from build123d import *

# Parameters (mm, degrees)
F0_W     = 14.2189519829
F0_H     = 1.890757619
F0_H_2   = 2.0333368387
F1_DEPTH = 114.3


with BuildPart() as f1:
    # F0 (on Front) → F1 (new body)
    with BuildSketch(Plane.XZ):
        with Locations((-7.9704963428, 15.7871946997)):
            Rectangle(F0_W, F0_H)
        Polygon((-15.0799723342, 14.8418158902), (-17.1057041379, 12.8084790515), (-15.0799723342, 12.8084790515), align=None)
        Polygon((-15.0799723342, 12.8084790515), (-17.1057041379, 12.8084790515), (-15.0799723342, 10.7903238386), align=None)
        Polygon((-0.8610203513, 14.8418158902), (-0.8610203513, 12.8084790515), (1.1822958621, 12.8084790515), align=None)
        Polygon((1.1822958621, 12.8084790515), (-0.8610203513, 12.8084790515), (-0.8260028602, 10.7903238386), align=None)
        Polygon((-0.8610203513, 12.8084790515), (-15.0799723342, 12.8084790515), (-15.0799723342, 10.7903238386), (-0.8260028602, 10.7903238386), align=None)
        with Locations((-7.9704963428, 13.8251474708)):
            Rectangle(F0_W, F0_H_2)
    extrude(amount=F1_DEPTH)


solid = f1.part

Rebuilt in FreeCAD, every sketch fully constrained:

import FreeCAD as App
import Part
import Sketcher
from FreeCAD import Vector
Q = App.Units.Quantity


def add_polygon(sketch, points):
    """Adds a closed chain of lines whose ends are joined by coincident constraints."""
    first, n = sketch.GeometryCount, len(points)
    for a, b in zip(points, points[1:] + points[:1]):
        sketch.addGeometry(Part.LineSegment(App.Vector(*a, 0), App.Vector(*b, 0)), False)
    for i in range(n):
        sketch.addConstraint(Sketcher.Constraint("Coincident", first + i, 2, first + (i + 1) % n, 1))

doc = App.newDocument("Part")
body = doc.addObject("PartDesign::Body", "Body")

sketch1 = doc.addObject("Sketcher::SketchObject", "Sketch")
body.addObject(sketch1)
sketch1.AttachmentSupport = (doc.XZ_Plane, [""])
sketch1.MapMode = "FlatFace"
add_polygon(sketch1, [(-15.1, 16.7), (-15.1, 14.8), (-17.1, 12.8), (-15.1, 10.8), (-0.8, 10.8), (1.2, 12.8), (-0.9, 14.8), (-0.9, 16.7)])
sketch1.addConstraint([
    Sketcher.Constraint("Vertical", 0),
    Sketcher.Constraint("Horizontal", 3),
    Sketcher.Constraint("Vertical", 6),
    Sketcher.Constraint("Horizontal", 7),
    Sketcher.Constraint("Perpendicular", 1, 2),
    Sketcher.Constraint("Perpendicular", 4, 5),
    Sketcher.Constraint("Horizontal", 1, 2, 4, 2),
    Sketcher.Constraint("Horizontal", 0, 2, 5, 2),
    Sketcher.Constraint("Vertical", 0, 2, 2, 2),
    Sketcher.Constraint("DistanceX", 1, 2, 4, 2, Q("0.72 in")),
    Sketcher.Constraint("Distance", 1, Q("0.113 in")),
    Sketcher.Constraint("DistanceX", 3, 1, 3, 2, Q("14.253969 mm")),
    Sketcher.Constraint("DistanceX", 7, 2, 7, 1, Q("14.218952 mm")),
    Sketcher.Constraint("DistanceY", 0, 2, 0, 1, Q("1.890758 mm")),
    Sketcher.Constraint("DistanceY", -1, 1, 1, 2, Q("12.808479 mm")),
    Sketcher.Constraint("DistanceX", 5, 2, -1, 1, Q("0.86102 mm")),
])
pad1 = doc.addObject("PartDesign::Pad", "Pad")
body.addObject(pad1)
pad1.Profile = sketch1
pad1.Length = Q("4.5 in")

doc.recompute()
